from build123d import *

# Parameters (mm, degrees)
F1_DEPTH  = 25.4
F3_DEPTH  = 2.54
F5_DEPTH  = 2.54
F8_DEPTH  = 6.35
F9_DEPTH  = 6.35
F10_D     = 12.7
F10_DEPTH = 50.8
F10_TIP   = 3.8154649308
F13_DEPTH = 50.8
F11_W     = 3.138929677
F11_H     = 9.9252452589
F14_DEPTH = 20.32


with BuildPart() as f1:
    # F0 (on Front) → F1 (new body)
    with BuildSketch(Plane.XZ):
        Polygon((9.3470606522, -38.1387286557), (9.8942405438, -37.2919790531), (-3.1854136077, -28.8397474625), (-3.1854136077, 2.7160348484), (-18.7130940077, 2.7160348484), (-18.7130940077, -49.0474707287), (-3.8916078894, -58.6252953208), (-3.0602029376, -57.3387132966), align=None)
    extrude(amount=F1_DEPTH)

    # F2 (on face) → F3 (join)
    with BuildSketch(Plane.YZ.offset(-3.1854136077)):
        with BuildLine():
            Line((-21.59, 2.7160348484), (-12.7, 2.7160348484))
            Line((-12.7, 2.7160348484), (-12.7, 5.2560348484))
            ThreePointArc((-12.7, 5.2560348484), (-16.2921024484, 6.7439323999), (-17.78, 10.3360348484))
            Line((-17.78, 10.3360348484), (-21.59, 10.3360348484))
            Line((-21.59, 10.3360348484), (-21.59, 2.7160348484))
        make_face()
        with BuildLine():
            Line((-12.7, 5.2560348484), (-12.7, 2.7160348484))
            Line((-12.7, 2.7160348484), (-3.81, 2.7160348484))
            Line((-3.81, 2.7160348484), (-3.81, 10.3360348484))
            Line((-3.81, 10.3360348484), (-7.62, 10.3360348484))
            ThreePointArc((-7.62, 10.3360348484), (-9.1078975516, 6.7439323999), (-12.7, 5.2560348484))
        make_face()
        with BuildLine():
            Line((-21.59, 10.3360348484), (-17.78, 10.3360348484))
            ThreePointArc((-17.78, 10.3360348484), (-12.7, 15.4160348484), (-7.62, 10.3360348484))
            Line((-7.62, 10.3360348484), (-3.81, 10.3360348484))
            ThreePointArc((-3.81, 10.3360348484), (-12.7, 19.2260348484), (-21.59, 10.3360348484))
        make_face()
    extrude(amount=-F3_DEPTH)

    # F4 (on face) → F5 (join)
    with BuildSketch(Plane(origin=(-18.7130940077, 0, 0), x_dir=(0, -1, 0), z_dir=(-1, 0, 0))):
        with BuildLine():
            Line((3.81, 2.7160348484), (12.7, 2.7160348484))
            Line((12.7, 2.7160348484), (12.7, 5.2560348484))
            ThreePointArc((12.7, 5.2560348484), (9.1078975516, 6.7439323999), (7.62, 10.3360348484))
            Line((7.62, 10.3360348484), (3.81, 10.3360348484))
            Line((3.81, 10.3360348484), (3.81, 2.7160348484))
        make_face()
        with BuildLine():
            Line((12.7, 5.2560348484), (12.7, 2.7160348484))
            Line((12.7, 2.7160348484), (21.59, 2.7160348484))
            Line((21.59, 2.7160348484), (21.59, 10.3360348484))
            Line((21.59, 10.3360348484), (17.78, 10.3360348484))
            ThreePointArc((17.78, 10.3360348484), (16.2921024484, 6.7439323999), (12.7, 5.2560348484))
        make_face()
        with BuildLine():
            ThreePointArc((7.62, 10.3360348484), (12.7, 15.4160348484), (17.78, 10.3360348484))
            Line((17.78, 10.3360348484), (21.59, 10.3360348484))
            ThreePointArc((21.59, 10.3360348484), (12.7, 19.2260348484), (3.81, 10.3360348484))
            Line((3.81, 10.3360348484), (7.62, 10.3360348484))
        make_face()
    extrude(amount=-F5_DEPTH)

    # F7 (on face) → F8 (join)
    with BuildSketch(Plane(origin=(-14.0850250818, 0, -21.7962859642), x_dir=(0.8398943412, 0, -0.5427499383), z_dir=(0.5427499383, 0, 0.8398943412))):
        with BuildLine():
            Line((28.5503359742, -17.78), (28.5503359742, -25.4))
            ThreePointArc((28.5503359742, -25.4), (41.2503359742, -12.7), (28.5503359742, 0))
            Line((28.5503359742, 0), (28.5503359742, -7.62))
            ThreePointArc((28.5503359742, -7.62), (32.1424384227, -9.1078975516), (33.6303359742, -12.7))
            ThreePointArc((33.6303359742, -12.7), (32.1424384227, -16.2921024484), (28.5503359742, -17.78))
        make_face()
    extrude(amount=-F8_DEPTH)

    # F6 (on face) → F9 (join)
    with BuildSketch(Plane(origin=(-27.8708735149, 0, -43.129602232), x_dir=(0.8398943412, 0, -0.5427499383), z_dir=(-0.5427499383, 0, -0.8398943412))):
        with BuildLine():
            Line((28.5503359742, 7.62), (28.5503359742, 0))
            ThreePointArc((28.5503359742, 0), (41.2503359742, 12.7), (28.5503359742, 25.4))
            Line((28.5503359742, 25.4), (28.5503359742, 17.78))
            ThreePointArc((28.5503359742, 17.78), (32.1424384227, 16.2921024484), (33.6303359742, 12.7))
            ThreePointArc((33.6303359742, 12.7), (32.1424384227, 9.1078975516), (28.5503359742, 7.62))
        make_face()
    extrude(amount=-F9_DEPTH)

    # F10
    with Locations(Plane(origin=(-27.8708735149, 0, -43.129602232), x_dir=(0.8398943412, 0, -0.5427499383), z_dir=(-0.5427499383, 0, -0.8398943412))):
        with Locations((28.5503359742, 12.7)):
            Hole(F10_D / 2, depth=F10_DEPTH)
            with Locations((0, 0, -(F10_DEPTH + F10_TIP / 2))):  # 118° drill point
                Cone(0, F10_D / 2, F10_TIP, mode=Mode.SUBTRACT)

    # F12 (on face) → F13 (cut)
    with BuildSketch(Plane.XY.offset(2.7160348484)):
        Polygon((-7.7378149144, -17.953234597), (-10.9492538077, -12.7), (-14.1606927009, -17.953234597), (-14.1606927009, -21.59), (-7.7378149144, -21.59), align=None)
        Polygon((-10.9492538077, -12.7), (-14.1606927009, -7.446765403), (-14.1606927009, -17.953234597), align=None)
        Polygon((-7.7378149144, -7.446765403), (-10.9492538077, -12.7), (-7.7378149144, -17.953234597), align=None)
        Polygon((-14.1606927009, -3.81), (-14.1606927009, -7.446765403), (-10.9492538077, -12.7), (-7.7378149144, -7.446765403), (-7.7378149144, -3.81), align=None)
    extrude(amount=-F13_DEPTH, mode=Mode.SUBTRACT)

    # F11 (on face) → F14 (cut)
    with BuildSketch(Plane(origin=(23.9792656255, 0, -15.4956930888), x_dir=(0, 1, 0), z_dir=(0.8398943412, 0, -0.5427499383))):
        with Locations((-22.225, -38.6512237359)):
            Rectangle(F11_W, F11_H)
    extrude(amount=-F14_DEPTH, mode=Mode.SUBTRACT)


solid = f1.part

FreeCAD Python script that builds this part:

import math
import FreeCAD as App
import Part
import Sketcher
Q = App.Units.Quantity


def add_polygon(sketch, points):
    """Adds a closed chain of lines whose ends are joined by coincident constraints."""
    first, n = sketch.GeometryCount, len(points)
    for a, b in zip(points, points[1:] + points[:1]):
        sketch.addGeometry(Part.LineSegment(App.Vector(*a, 0), App.Vector(*b, 0)), False)
    for i in range(n):
        sketch.addConstraint(Sketcher.Constraint("Coincident", first + i, 2, first + (i + 1) % n, 1))

doc = App.newDocument("Part")
body = doc.addObject("PartDesign::Body", "Body")

sketch1 = doc.addObject("Sketcher::SketchObject", "Sketch")
body.addObject(sketch1)
sketch1.AttachmentSupport = (doc.XZ_Plane, [""])
sketch1.MapMode = "FlatFace"
add_polygon(sketch1, [(9.347061, -38.138729), (9.894241, -37.291979), (-3.185414, -28.839747), (-3.185414, 2.716035), (-18.713094, 2.716035), (-18.713094, -49.047471), (-3.891608, -58.625295), (-3.060203, -57.338713)])
sketch1.addConstraint([
    Sketcher.Constraint("Vertical", 2),
    Sketcher.Constraint("Horizontal", 3),
    Sketcher.Constraint("Vertical", 4),
    Sketcher.Constraint("Perpendicular", 0, 1),
    Sketcher.Constraint("Parallel", 1, 5),
    Sketcher.Constraint("Perpendicular", 5, 6),
    Sketcher.Constraint("Parallel", 6, 7),
    Sketcher.Constraint("Distance", 7, Q("0.9 in")),
    Sketcher.Constraint("DistanceX", 3, 2, 3, 1, 15.52768),
    Sketcher.Constraint("DistanceY", 2, 1, 2, 2, 31.555782),
    Sketcher.Constraint("DistanceY", 4, 2, 4, 1, 51.763506),
    Sketcher.Constraint("DistanceX", -1, 1, 0, 2, 9.894241),
    Sketcher.Constraint("DistanceY", 0, 2, -1, 1, 37.291979),
    Sketcher.Constraint("DistanceY", 4, 2, -1, 1, 49.047471),
    Sketcher.Constraint("DistanceX", -1, 1, 7, 2, 9.347061),
    Sketcher.Constraint("DistanceY", 7, 2, -1, 1, 38.138729),
])
pad1 = doc.addObject("PartDesign::Pad", "Pad")
body.addObject(pad1)
pad1.Profile = sketch1
pad1.Length = Q("1 in")

sketch2 = doc.addObject("Sketcher::SketchObject", "Sketch001")
body.addObject(sketch2)
sketch2.AttachmentSupport = (doc.YZ_Plane, [""])
sketch2.MapMode = "FlatFace"
sketch2.AttachmentOffset = App.Placement(App.Vector(0, 0, -3.185414), App.Rotation())
sketch2.addGeometry([
    Part.LineSegment(App.Vector(-21.59, 2.716035, 0), App.Vector(-3.81, 2.716035, 0)),
    Part.LineSegment(App.Vector(-3.81, 2.716035, 0), App.Vector(-3.81, 10.336035, 0)),
    Part.ArcOfCircle(Part.Circle(App.Vector(-12.7, 10.336035, 0), App.Vector(0, 0, 1), 8.89), math.radians(0), math.radians(180)),
    Part.LineSegment(App.Vector(-21.59, 10.336035, 0), App.Vector(-21.59, 2.716035, 0)),
    Part.ArcOfCircle(Part.Circle(App.Vector(-12.7, 10.336035, 0), App.Vector(0, 0, 1), 5.08), math.radians(-90), math.radians(0)),
    Part.ArcOfCircle(Part.Circle(App.Vector(-12.7, 10.336035, 0), App.Vector(0, 0, 1), 5.08), math.radians(180), math.radians(270)),
    Part.ArcOfCircle(Part.Circle(App.Vector(-12.7, 10.336035, 0), App.Vector(0, 0, 1), 5.08), math.radians(0), math.radians(180)),
], False)
sketch2.addConstraint([
    Sketcher.Constraint("Coincident", 0, 2, 1, 1),
    Sketcher.Constraint("Tangent", 1, 2, 2, 1),
    Sketcher.Constraint("Tangent", 2, 2, 3, 1),
    Sketcher.Constraint("Coincident", 3, 2, 0, 1),
    Sketcher.Constraint("Tangent", 4, 1, 5, 2),
    Sketcher.Constraint("Tangent", 5, 1, 6, 2),
    Sketcher.Constraint("Tangent", 6, 1, 4, 2),
    Sketcher.Constraint("Horizontal", 0),
    Sketcher.Constraint("Vertical", 1),
    Sketcher.Constraint("Vertical", 3),
    Sketcher.Constraint("Coincident", 4, 3, 2, 3),
    Sketcher.Constraint("Horizontal", 2, 2, 5, 1),
    Sketcher.Constraint("Horizontal", 5, 1, 6, 1),
    Sketcher.Constraint("Vertical", 6, 3, 4, 1),
    Sketcher.Constraint("Radius", 4, Q("0.2 in")),
    Sketcher.Constraint("Radius", 2, Q("0.35 in")),
    Sketcher.Constraint("DistanceY", 1, 1, 1, 2, Q("0.3 in")),
    Sketcher.Constraint("DistanceX", 2, 3, -1, 1, Q("0.5 in")),
    Sketcher.Constraint("DistanceY", -1, 1, 2, 3, 10.336035),
])
pad2 = doc.addObject("PartDesign::Pad", "Pad001")
body.addObject(pad2)
pad2.Profile = sketch2
pad2.Length = Q("0.1 in")
pad2.Reversed = True

sketch3 = doc.addObject("Sketcher::SketchObject", "Sketch002")
body.addObject(sketch3)
sketch3.AttachmentSupport = (doc.YZ_Plane, [""])
sketch3.MapMode = "FlatFace"
sketch3.AttachmentOffset = App.Placement(App.Vector(0, 0, -18.713094), App.Rotation())
sketch3.addGeometry([
    Part.LineSegment(App.Vector(-3.81, 2.716035, 0), App.Vector(-21.59, 2.716035, 0)),
    Part.LineSegment(App.Vector(-21.59, 2.716035, 0), App.Vector(-21.59, 10.336035, 0)),
    Part.ArcOfCircle(Part.Circle(App.Vector(-12.7, 10.336035, 0), App.Vector(0, 0, 1), 8.89), math.radians(0), math.radians(180)),
    Part.LineSegment(App.Vector(-3.81, 10.336035, 0), App.Vector(-3.81, 2.716035, 0)),
    Part.ArcOfCircle(Part.Circle(App.Vector(-12.7, 10.336035, 0), App.Vector(0, 0, 1), 5.08), math.radians(180), math.radians(270)),
    Part.ArcOfCircle(Part.Circle(App.Vector(-12.7, 10.336035, 0), App.Vector(0, 0, 1), 5.08), math.radians(-90), math.radians(0)),
    Part.ArcOfCircle(Part.Circle(App.Vector(-12.7, 10.336035, 0), App.Vector(0, 0, 1), 5.08), math.radians(0), math.radians(180)),
], False)
sketch3.addConstraint([
    Sketcher.Constraint("Coincident", 0, 2, 1, 1),
    Sketcher.Constraint("Tangent", 1, 2, 2, 2),
    Sketcher.Constraint("Tangent", 2, 1, 3, 1),
    Sketcher.Constraint("Coincident", 3, 2, 0, 1),
    Sketcher.Constraint("Tangent", 4, 2, 5, 1),
    Sketcher.Constraint("Tangent", 5, 2, 6, 1),
    Sketcher.Constraint("Tangent", 6, 2, 4, 1),
    Sketcher.Constraint("Horizontal", 0),
    Sketcher.Constraint("Vertical", 1),
    Sketcher.Constraint("Vertical", 3),
    Sketcher.Constraint("Coincident", 4, 3, 2, 3),
    Sketcher.Constraint("Horizontal", 2, 1, 5, 2),
    Sketcher.Constraint("Horizontal", 5, 2, 6, 2),
    Sketcher.Constraint("Vertical", 6, 3, 4, 2),
    Sketcher.Constraint("Radius", 4, Q("0.2 in")),
    Sketcher.Constraint("Radius", 2, Q("0.35 in")),
    Sketcher.Constraint("DistanceY", 1, 1, 1, 2, Q("0.3 in")),
    Sketcher.Constraint("DistanceX", 2, 3, -1, 1, Q("0.5 in")),
    Sketcher.Constraint("DistanceY", -1, 1, 2, 3, 10.336035),
])
pad3 = doc.addObject("PartDesign::Pad", "Pad002")
body.addObject(pad3)
pad3.Profile = sketch3
pad3.Length = Q("0.1 in")

sketch4 = doc.addObject("Sketcher::SketchObject", "Sketch003")
body.addObject(sketch4)
sketch4.Placement = App.Placement(App.Vector(-14.085025, 0, -21.796286), App.Rotation(App.Vector(0.839894341, 0, -0.542749938), App.Vector(0, 0.999999999, 0), App.Vector(0.542749938, 0, 0.839894341), "ZXY"))
sketch4.addGeometry([
    Part.LineSegment(App.Vector(28.550336, -17.78, 0), App.Vector(28.550336, -25.4, 0)),
    Part.ArcOfCircle(Part.Circle(App.Vector(28.550336, -12.7, 0), App.Vector(0, 0, 1), 12.7), math.radians(-90), math.radians(90)),
    Part.LineSegment(App.Vector(28.550336, 0, 0), App.Vector(28.550336, -7.62, 0)),
    Part.ArcOfCircle(Part.Circle(App.Vector(28.550336, -12.7, 0), App.Vector(0, 0, 1), 5.08), math.radians(0), math.radians(90)),
    Part.ArcOfCircle(Part.Circle(App.Vector(28.550336, -12.7, 0), App.Vector(0, 0, 1), 5.08), math.radians(-90), math.radians(0)),
], False)
sketch4.addConstraint([
    Sketcher.Constraint("Coincident", 0, 2, 1, 1),
    Sketcher.Constraint("Coincident", 1, 2, 2, 1),
    Sketcher.Constraint("Coincident", 2, 2, 3, 2),
    Sketcher.Constraint("Tangent", 3, 1, 4, 2),
    Sketcher.Constraint("Coincident", 4, 1, 0, 1),
    Sketcher.Constraint("Vertical", 0),
    Sketcher.Constraint("Vertical", 2),
    Sketcher.Constraint("Coincident", 3, 3, 1, 3),
    Sketcher.Constraint("Equal", 3, 4),
    Sketcher.Constraint("PointOnObject", 1, 2, -1),
    Sketcher.Constraint("Horizontal", 4, 3, 3, 1),
    Sketcher.Constraint("Vertical", 4, 3, 0, 2),
    Sketcher.Constraint("Vertical", 0, 2, 1, 2),
    Sketcher.Constraint("Radius", 1, Q("0.5 in")),
    Sketcher.Constraint("Radius", 3, Q("0.2 in")),
    Sketcher.Constraint("DistanceX", -1, 1, 1, 3, 28.550336),
])
pad4 = doc.addObject("PartDesign::Pad", "Pad003")
body.addObject(pad4)
pad4.Profile = sketch4
pad4.Length = Q("0.25 in")
pad4.Reversed = True

sketch5 = doc.addObject("Sketcher::SketchObject", "Sketch004")
body.addObject(sketch5)
sketch5.Placement = App.Placement(App.Vector(-27.870874, 0, -43.129602), App.Rotation(App.Vector(0.839894341, 0, -0.542749938), App.Vector(0, -0.999999999, 0), App.Vector(-0.542749938, 0, -0.839894341), "ZXY"))
sketch5.addGeometry([
    Part.LineSegment(App.Vector(28.550336, 7.62, 0), App.Vector(28.550336, 0, 0)),
    Part.ArcOfCircle(Part.Circle(App.Vector(28.550336, 12.7, 0), App.Vector(0, 0, 1), 12.7), math.radians(-90), math.radians(90)),
    Part.LineSegment(App.Vector(28.550336, 25.4, 0), App.Vector(28.550336, 17.78, 0)),
    Part.ArcOfCircle(Part.Circle(App.Vector(28.550336, 12.7, 0), App.Vector(0, 0, 1), 5.08), math.radians(0), math.radians(90)),
    Part.ArcOfCircle(Part.Circle(App.Vector(28.550336, 12.7, 0), App.Vector(0, 0, 1), 5.08), math.radians(-90), math.radians(0)),
], False)
sketch5.addConstraint([
    Sketcher.Constraint("Coincident", 0, 2, 1, 1),
    Sketcher.Constraint("Coincident", 1, 2, 2, 1),
    Sketcher.Constraint("Coincident", 2, 2, 3, 2),
    Sketcher.Constraint("Tangent", 3, 1, 4, 2),
    Sketcher.Constraint("Coincident", 4, 1, 0, 1),
    Sketcher.Constraint("Vertical", 0),
    Sketcher.Constraint("Vertical", 2),
    Sketcher.Constraint("Coincident", 3, 3, 1, 3),
    Sketcher.Constraint("Equal", 3, 4),
    Sketcher.Constraint("PointOnObject", 0, 2, -1),
    Sketcher.Constraint("Horizontal", 4, 3, 3, 1),
    Sketcher.Constraint("Vertical", 4, 3, 0, 2),
    Sketcher.Constraint("Vertical", 0, 2, 1, 2),
    Sketcher.Constraint("Radius", 1, Q("0.5 in")),
    Sketcher.Constraint("Radius", 3, Q("0.2 in")),
    Sketcher.Constraint("DistanceX", -1, 1, 1, 3, 28.550336),
])
pad5 = doc.addObject("PartDesign::Pad", "Pad004")
body.addObject(pad5)
pad5.Profile = sketch5
pad5.Length = Q("0.25 in")
pad5.Reversed = True

sketch6 = doc.addObject("Sketcher::SketchObject", "Sketch005")
body.addObject(sketch6)
sketch6.Placement = App.Placement(App.Vector(-27.870874, 0, -43.129602), App.Rotation(App.Vector(0.839894341, 0, -0.542749938), App.Vector(0, -0.999999999, 0), App.Vector(-0.542749938, 0, -0.839894341), "ZXY"))
sketch6.addGeometry(Part.Circle(App.Vector(28.550336, 12.7, 0), App.Vector(0, 0, 1), 6.35), False)
sketch6.addConstraint([
    Sketcher.Constraint("Diameter", 0, Q("0.5 in")),
    Sketcher.Constraint("DistanceY", -1, 1, 0, 3, Q("0.5 in")),
    Sketcher.Constraint("DistanceX", -1, 1, 0, 3, 28.550336),
])
doc.recompute()
hole = doc.addObject("PartDesign::Hole", "Hole")
body.addObject(hole)
hole.Profile = sketch6
hole.ThreadType = "None"
hole.Diameter = Q("0.5 in")
hole.DepthType = "Dimension"
hole.Depth = Q("2 in")
hole.DrillPoint = "Angled"
hole.DrillPointAngle = 118

sketch7 = doc.addObject("Sketcher::SketchObject", "Sketch006")
body.addObject(sketch7)
sketch7.AttachmentSupport = (doc.XY_Plane, [""])
sketch7.MapMode = "FlatFace"
sketch7.AttachmentOffset = App.Placement(App.Vector(0, 0, 2.716035), App.Rotation())
add_polygon(sketch7, [(-14.160693, -21.59), (-7.737815, -21.59), (-7.737815, -3.81), (-14.160693, -3.81)])
sketch7.addConstraint([
    Sketcher.Constraint("Horizontal", 0),
    Sketcher.Constraint("Vertical", 1),
    Sketcher.Constraint("Horizontal", 2),
    Sketcher.Constraint("Vertical", 3),
    Sketcher.Constraint("DistanceY", 1, 1, 1, 2, Q("0.7 in")),
    Sketcher.Constraint("DistanceY", 0, 2, -1, 1, Q("0.85 in")),
    Sketcher.Constraint("DistanceX", 0, 1, 0, 2, 6.422878),
    Sketcher.Constraint("DistanceX", 0, 2, -1, 1, 7.737815),
])
pocket1 = doc.addObject("PartDesign::Pocket", "Pocket")
body.addObject(pocket1)
pocket1.Profile = sketch7
pocket1.Length = Q("2 in")

sketch8 = doc.addObject("Sketcher::SketchObject", "Sketch007")
body.addObject(sketch8)
sketch8.Placement = App.Placement(App.Vector(23.979266, 0, -15.495693), App.Rotation(App.Vector(0, 1, 0), App.Vector(0.542749938, 0, 0.839894341), App.Vector(0.839894341, 0, -0.542749938), "ZXY"))
add_polygon(sketch8, [(-23.794465, -33.688601), (-23.794465, -43.613846), (-20.655535, -43.613846), (-20.655535, -33.688601)])
sketch8.addConstraint([
    Sketcher.Constraint("Vertical", 0),
    Sketcher.Constraint("Horizontal", 1),
    Sketcher.Constraint("Vertical", 2),
    Sketcher.Constraint("Horizontal", 3),
    Sketcher.Constraint("DistanceX", 1, 1, 1, 2, 3.13893),
    Sketcher.Constraint("DistanceY", 2, 2, -1, 1, 33.688601),
    Sketcher.Constraint("DistanceY", 0, 2, 0, 1, 9.925245),
    Sketcher.Constraint("DistanceX", 0, 2, -1, 1, 23.794465),
])
pocket2 = doc.addObject("PartDesign::Pocket", "Pocket001")
body.addObject(pocket2)
pocket2.Profile = sketch8
pocket2.Length = Q("0.8 in")

doc.recompute()
